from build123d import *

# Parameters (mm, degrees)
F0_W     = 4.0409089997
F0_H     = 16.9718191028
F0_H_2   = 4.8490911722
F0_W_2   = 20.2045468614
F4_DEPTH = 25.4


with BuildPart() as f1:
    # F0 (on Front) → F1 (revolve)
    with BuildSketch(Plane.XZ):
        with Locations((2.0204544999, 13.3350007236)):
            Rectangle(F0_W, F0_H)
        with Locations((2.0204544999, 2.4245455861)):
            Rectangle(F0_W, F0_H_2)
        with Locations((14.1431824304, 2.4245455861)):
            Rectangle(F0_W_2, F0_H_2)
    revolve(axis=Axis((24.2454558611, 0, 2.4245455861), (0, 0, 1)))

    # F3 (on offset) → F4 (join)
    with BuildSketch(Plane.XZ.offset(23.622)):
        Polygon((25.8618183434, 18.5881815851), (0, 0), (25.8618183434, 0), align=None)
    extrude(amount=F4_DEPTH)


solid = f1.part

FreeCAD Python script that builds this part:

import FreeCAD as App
import Part
import Sketcher
from FreeCAD import Vector
Q = App.Units.Quantity


def add_polygon(sketch, points):
    """Adds a closed chain of lines whose ends are joined by coincident constraints."""
    first, n = sketch.GeometryCount, len(points)
    for a, b in zip(points, points[1:] + points[:1]):
        sketch.addGeometry(Part.LineSegment(App.Vector(*a, 0), App.Vector(*b, 0)), False)
    for i in range(n):
        sketch.addConstraint(Sketcher.Constraint("Coincident", first + i, 2, first + (i + 1) % n, 1))

doc = App.newDocument("Part")
body = doc.addObject("PartDesign::Body", "Body")

sketch1 = body.newObject("Sketcher::SketchObject", "Sketch")
sketch1.AttachmentSupport = (doc.getObject("XZ_Plane"), [""])
sketch1.MapMode = "FlatFace"
add_polygon(sketch1, [(0, 21.8), (0, 0), (24.2, 0), (24.2, 4.8), (4, 4.8), (4, 21.8)])
sketch1.addGeometry(Part.LineSegment(Vector(24.2, 0, 0), Vector(24.2, 21.8, 0)), True)
sketch1.addConstraint([
    Sketcher.Constraint("Vertical", 0),
    Sketcher.Constraint("Horizontal", 1),
    Sketcher.Constraint("Vertical", 2),
    Sketcher.Constraint("Horizontal", 3),
    Sketcher.Constraint("Vertical", 4),
    Sketcher.Constraint("Horizontal", 5),
    Sketcher.Constraint("Vertical", 6),
    Sketcher.Constraint("Coincident", 0, 2, -1, 1),
    Sketcher.Constraint("Coincident", 6, 1, 1, 2),
    Sketcher.Constraint("Horizontal", 5, 2, 6, 2),
    Sketcher.Constraint("DistanceX", 5, 2, 5, 1, 4.040909),
    Sketcher.Constraint("DistanceY", 0, 2, 0, 1, 21.82091),
    Sketcher.Constraint("DistanceY", 2, 1, 2, 2, 4.849091),
    Sketcher.Constraint("DistanceX", 1, 1, 1, 2, 24.245456),
])
revolution = body.newObject("PartDesign::Revolution", "Revolution")
revolution.Profile = sketch1
revolution.ReferenceAxis = (sketch1, ["Axis0"])
revolution.Angle = 360

sketch2 = body.newObject("Sketcher::SketchObject", "Sketch001")
sketch2.AttachmentSupport = (doc.getObject("XZ_Plane"), [""])
sketch2.MapMode = "FlatFace"
sketch2.AttachmentOffset = App.Placement(Vector(0, 0, 0.93 * 25.4), App.Rotation())
add_polygon(sketch2, [(26, 19), (0, 0), (26, 0)])
sketch2.addConstraint([
    Sketcher.Constraint("Horizontal", 1),
    Sketcher.Constraint("Vertical", 2),
    Sketcher.Constraint("Coincident", 0, 2, -1, 1),
    Sketcher.Constraint("DistanceX", 1, 1, 1, 2, 25.861818),
    Sketcher.Constraint("DistanceY", 2, 1, 2, 2, 18.588182),
])
pad1 = body.newObject("PartDesign::Pad", "Pad")
pad1.Profile = sketch2
pad1.Length = Q("1 in")

doc.recompute()
